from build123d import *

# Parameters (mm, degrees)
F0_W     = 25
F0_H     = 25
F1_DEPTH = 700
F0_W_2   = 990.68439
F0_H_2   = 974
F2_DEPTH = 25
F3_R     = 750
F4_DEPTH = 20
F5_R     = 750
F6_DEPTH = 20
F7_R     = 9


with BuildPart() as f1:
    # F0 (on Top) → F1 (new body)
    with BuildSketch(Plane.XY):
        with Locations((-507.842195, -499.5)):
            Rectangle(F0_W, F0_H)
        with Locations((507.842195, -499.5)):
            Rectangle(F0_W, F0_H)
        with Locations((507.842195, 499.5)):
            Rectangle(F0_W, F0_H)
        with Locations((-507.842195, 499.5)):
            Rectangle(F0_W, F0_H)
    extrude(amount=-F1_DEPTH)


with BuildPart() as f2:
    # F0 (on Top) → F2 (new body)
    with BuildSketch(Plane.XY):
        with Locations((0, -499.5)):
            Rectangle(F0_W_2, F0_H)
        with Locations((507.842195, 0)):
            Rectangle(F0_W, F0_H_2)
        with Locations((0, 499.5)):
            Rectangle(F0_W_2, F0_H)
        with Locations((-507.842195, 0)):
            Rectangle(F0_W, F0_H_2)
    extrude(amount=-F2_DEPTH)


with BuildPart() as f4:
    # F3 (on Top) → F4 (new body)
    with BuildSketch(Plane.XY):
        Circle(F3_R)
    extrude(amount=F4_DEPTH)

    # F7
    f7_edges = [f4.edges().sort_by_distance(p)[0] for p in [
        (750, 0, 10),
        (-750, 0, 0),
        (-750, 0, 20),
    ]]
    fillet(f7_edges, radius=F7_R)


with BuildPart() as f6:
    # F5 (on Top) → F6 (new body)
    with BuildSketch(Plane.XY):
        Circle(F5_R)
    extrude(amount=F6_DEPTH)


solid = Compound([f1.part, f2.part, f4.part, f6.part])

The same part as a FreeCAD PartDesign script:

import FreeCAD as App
import Part
import Sketcher


def add_polygon(sketch, points):
    """Adds a closed chain of lines whose ends are joined by coincident constraints."""
    first, n = sketch.GeometryCount, len(points)
    for a, b in zip(points, points[1:] + points[:1]):
        sketch.addGeometry(Part.LineSegment(App.Vector(*a, 0), App.Vector(*b, 0)), False)
    for i in range(n):
        sketch.addConstraint(Sketcher.Constraint("Coincident", first + i, 2, first + (i + 1) % n, 1))

doc = App.newDocument("Part")
body = doc.addObject("PartDesign::Body", "Body")
body.AllowCompound = True

sketch1 = doc.addObject("Sketcher::SketchObject", "Sketch")
body.addObject(sketch1)
sketch1.AttachmentSupport = (doc.XY_Plane, [""])
sketch1.MapMode = "FlatFace"
add_polygon(sketch1, [(-520, -487), (-520, -512), (-495, -512), (-495, -487)])
add_polygon(sketch1, [(495, -487), (495, -512), (520, -512), (520, -487)])
add_polygon(sketch1, [(495, 512), (495, 487), (520, 487), (520, 512)])
add_polygon(sketch1, [(-520, 512), (-520, 487), (-495, 487), (-495, 512)])
sketch1.addConstraint([
    Sketcher.Constraint("Vertical", 0),
    Sketcher.Constraint("Horizontal", 1),
    Sketcher.Constraint("Vertical", 2),
    Sketcher.Constraint("Horizontal", 3),
    Sketcher.Constraint("Vertical", 4),
    Sketcher.Constraint("Horizontal", 5),
    Sketcher.Constraint("Vertical", 6),
    Sketcher.Constraint("Horizontal", 7),
    Sketcher.Constraint("Vertical", 8),
    Sketcher.Constraint("Horizontal", 9),
    Sketcher.Constraint("Vertical", 10),
    Sketcher.Constraint("Horizontal", 11),
    Sketcher.Constraint("Vertical", 12),
    Sketcher.Constraint("Horizontal", 13),
    Sketcher.Constraint("Vertical", 14),
    Sketcher.Constraint("Horizontal", 15),
    Sketcher.Constraint("Symmetric", 2, 2, 8, 2, -1, 1),
    Sketcher.Constraint("Symmetric", 0, 2, 10, 2, -1, 1),
    Sketcher.Constraint("Symmetric", 6, 2, 12, 2, -1, 1),
    Sketcher.Constraint("Symmetric", 4, 2, 14, 2, -1, 1),
    Sketcher.Constraint("Symmetric", 1, 2, 4, 2, -2),
    Sketcher.Constraint("Symmetric", 3, 2, 6, 2, -2),
    Sketcher.Constraint("Equal", 15, 0),
    Sketcher.Constraint("DistanceX", 1, 1, 1, 2, 25.0),
    Sketcher.Constraint("DistanceY", 0, 2, -1, 1, 512.0),
    Sketcher.Constraint("DistanceX", 1, 2, 4, 2, 990.68439),
])
pad1 = doc.addObject("PartDesign::Pad", "Pad")
body.addObject(pad1)
pad1.Profile = sketch1
pad1.Length = 700
pad1.Reversed = True
body2 = doc.addObject("PartDesign::Body", "Body001")
body2.AllowCompound = True

sketch2 = doc.addObject("Sketcher::SketchObject", "Sketch001")
body2.addObject(sketch2)
sketch2.AttachmentSupport = (doc.getObject("XY_Plane001"), [""])
sketch2.MapMode = "FlatFace"
add_polygon(sketch2, [(-495, -487), (-495, -512), (495, -512), (495, -487)])
add_polygon(sketch2, [(495, 487), (495, -487), (520, -487), (520, 487)])
add_polygon(sketch2, [(-495, 512), (-495, 487), (495, 487), (495, 512)])
add_polygon(sketch2, [(-520, 487), (-520, -487), (-495, -487), (-495, 487)])
sketch2.addConstraint([
    Sketcher.Constraint("Vertical", 0),
    Sketcher.Constraint("Horizontal", 1),
    Sketcher.Constraint("Vertical", 2),
    Sketcher.Constraint("Horizontal", 3),
    Sketcher.Constraint("Vertical", 4),
    Sketcher.Constraint("Horizontal", 5),
    Sketcher.Constraint("Vertical", 6),
    Sketcher.Constraint("Horizontal", 7),
    Sketcher.Constraint("Vertical", 8),
    Sketcher.Constraint("Horizontal", 9),
    Sketcher.Constraint("Vertical", 10),
    Sketcher.Constraint("Horizontal", 11),
    Sketcher.Constraint("Vertical", 12),
    Sketcher.Constraint("Horizontal", 13),
    Sketcher.Constraint("Vertical", 14),
    Sketcher.Constraint("Horizontal", 15),
    Sketcher.Constraint("Coincident", 4, 2, 2, 2),
    Sketcher.Constraint("Coincident", 9, 2, 7, 2),
    Sketcher.Constraint("Coincident", 13, 2, 3, 2),
    Sketcher.Constraint("Coincident", 14, 2, 8, 2),
    Sketcher.Constraint("Symmetric", 3, 2, 7, 2, -1, 1),
    Sketcher.Constraint("Equal", 7, 13),
    Sketcher.Constraint("Equal", 15, 0),
    Sketcher.Constraint("Equal", 2, 8),
    Sketcher.Constraint("DistanceX", 5, 1, 5, 2, 25.0),
    Sketcher.Constraint("DistanceY", 4, 2, 4, 1, 974.0),
    Sketcher.Constraint("DistanceX", 1, 1, 1, 2, 990.68439),
])
pad2 = doc.addObject("PartDesign::Pad", "Pad001")
body2.addObject(pad2)
pad2.Profile = sketch2
pad2.Length = 25
pad2.Reversed = True
body3 = doc.addObject("PartDesign::Body", "Body002")

sketch3 = doc.addObject("Sketcher::SketchObject", "Sketch002")
body3.addObject(sketch3)
sketch3.AttachmentSupport = (doc.getObject("XY_Plane002"), [""])
sketch3.MapMode = "FlatFace"
sketch3.addGeometry(Part.Circle(App.Vector(0, 0, 0), App.Vector(0, 0, 1), 750), False)
sketch3.addConstraint([
    Sketcher.Constraint("Coincident", 0, 3, -1, 1),
    Sketcher.Constraint("Diameter", 0, 1500.0),
])
pad3 = doc.addObject("PartDesign::Pad", "Pad002")
body3.addObject(pad3)
pad3.Profile = sketch3
pad3.Length = 20
doc.recompute()

fillet = doc.addObject("PartDesign::Fillet", "Fillet")
body3.addObject(fillet)
fillet.Base = (pad3, ["Edge1"])
fillet.UseAllEdges = True
fillet.Radius = 9
body4 = doc.addObject("PartDesign::Body", "Body003")

sketch4 = doc.addObject("Sketcher::SketchObject", "Sketch003")
body4.addObject(sketch4)
sketch4.AttachmentSupport = (doc.getObject("XY_Plane003"), [""])
sketch4.MapMode = "FlatFace"
sketch4.addGeometry(Part.Circle(App.Vector(0, 0, 0), App.Vector(0, 0, 1), 750), False)
sketch4.addConstraint([
    Sketcher.Constraint("Coincident", 0, 3, -1, 1),
    Sketcher.Constraint("Diameter", 0, 1500.0),
])
pad4 = doc.addObject("PartDesign::Pad", "Pad003")
body4.addObject(pad4)
pad4.Profile = sketch4
pad4.Length = 20

doc.recompute()
